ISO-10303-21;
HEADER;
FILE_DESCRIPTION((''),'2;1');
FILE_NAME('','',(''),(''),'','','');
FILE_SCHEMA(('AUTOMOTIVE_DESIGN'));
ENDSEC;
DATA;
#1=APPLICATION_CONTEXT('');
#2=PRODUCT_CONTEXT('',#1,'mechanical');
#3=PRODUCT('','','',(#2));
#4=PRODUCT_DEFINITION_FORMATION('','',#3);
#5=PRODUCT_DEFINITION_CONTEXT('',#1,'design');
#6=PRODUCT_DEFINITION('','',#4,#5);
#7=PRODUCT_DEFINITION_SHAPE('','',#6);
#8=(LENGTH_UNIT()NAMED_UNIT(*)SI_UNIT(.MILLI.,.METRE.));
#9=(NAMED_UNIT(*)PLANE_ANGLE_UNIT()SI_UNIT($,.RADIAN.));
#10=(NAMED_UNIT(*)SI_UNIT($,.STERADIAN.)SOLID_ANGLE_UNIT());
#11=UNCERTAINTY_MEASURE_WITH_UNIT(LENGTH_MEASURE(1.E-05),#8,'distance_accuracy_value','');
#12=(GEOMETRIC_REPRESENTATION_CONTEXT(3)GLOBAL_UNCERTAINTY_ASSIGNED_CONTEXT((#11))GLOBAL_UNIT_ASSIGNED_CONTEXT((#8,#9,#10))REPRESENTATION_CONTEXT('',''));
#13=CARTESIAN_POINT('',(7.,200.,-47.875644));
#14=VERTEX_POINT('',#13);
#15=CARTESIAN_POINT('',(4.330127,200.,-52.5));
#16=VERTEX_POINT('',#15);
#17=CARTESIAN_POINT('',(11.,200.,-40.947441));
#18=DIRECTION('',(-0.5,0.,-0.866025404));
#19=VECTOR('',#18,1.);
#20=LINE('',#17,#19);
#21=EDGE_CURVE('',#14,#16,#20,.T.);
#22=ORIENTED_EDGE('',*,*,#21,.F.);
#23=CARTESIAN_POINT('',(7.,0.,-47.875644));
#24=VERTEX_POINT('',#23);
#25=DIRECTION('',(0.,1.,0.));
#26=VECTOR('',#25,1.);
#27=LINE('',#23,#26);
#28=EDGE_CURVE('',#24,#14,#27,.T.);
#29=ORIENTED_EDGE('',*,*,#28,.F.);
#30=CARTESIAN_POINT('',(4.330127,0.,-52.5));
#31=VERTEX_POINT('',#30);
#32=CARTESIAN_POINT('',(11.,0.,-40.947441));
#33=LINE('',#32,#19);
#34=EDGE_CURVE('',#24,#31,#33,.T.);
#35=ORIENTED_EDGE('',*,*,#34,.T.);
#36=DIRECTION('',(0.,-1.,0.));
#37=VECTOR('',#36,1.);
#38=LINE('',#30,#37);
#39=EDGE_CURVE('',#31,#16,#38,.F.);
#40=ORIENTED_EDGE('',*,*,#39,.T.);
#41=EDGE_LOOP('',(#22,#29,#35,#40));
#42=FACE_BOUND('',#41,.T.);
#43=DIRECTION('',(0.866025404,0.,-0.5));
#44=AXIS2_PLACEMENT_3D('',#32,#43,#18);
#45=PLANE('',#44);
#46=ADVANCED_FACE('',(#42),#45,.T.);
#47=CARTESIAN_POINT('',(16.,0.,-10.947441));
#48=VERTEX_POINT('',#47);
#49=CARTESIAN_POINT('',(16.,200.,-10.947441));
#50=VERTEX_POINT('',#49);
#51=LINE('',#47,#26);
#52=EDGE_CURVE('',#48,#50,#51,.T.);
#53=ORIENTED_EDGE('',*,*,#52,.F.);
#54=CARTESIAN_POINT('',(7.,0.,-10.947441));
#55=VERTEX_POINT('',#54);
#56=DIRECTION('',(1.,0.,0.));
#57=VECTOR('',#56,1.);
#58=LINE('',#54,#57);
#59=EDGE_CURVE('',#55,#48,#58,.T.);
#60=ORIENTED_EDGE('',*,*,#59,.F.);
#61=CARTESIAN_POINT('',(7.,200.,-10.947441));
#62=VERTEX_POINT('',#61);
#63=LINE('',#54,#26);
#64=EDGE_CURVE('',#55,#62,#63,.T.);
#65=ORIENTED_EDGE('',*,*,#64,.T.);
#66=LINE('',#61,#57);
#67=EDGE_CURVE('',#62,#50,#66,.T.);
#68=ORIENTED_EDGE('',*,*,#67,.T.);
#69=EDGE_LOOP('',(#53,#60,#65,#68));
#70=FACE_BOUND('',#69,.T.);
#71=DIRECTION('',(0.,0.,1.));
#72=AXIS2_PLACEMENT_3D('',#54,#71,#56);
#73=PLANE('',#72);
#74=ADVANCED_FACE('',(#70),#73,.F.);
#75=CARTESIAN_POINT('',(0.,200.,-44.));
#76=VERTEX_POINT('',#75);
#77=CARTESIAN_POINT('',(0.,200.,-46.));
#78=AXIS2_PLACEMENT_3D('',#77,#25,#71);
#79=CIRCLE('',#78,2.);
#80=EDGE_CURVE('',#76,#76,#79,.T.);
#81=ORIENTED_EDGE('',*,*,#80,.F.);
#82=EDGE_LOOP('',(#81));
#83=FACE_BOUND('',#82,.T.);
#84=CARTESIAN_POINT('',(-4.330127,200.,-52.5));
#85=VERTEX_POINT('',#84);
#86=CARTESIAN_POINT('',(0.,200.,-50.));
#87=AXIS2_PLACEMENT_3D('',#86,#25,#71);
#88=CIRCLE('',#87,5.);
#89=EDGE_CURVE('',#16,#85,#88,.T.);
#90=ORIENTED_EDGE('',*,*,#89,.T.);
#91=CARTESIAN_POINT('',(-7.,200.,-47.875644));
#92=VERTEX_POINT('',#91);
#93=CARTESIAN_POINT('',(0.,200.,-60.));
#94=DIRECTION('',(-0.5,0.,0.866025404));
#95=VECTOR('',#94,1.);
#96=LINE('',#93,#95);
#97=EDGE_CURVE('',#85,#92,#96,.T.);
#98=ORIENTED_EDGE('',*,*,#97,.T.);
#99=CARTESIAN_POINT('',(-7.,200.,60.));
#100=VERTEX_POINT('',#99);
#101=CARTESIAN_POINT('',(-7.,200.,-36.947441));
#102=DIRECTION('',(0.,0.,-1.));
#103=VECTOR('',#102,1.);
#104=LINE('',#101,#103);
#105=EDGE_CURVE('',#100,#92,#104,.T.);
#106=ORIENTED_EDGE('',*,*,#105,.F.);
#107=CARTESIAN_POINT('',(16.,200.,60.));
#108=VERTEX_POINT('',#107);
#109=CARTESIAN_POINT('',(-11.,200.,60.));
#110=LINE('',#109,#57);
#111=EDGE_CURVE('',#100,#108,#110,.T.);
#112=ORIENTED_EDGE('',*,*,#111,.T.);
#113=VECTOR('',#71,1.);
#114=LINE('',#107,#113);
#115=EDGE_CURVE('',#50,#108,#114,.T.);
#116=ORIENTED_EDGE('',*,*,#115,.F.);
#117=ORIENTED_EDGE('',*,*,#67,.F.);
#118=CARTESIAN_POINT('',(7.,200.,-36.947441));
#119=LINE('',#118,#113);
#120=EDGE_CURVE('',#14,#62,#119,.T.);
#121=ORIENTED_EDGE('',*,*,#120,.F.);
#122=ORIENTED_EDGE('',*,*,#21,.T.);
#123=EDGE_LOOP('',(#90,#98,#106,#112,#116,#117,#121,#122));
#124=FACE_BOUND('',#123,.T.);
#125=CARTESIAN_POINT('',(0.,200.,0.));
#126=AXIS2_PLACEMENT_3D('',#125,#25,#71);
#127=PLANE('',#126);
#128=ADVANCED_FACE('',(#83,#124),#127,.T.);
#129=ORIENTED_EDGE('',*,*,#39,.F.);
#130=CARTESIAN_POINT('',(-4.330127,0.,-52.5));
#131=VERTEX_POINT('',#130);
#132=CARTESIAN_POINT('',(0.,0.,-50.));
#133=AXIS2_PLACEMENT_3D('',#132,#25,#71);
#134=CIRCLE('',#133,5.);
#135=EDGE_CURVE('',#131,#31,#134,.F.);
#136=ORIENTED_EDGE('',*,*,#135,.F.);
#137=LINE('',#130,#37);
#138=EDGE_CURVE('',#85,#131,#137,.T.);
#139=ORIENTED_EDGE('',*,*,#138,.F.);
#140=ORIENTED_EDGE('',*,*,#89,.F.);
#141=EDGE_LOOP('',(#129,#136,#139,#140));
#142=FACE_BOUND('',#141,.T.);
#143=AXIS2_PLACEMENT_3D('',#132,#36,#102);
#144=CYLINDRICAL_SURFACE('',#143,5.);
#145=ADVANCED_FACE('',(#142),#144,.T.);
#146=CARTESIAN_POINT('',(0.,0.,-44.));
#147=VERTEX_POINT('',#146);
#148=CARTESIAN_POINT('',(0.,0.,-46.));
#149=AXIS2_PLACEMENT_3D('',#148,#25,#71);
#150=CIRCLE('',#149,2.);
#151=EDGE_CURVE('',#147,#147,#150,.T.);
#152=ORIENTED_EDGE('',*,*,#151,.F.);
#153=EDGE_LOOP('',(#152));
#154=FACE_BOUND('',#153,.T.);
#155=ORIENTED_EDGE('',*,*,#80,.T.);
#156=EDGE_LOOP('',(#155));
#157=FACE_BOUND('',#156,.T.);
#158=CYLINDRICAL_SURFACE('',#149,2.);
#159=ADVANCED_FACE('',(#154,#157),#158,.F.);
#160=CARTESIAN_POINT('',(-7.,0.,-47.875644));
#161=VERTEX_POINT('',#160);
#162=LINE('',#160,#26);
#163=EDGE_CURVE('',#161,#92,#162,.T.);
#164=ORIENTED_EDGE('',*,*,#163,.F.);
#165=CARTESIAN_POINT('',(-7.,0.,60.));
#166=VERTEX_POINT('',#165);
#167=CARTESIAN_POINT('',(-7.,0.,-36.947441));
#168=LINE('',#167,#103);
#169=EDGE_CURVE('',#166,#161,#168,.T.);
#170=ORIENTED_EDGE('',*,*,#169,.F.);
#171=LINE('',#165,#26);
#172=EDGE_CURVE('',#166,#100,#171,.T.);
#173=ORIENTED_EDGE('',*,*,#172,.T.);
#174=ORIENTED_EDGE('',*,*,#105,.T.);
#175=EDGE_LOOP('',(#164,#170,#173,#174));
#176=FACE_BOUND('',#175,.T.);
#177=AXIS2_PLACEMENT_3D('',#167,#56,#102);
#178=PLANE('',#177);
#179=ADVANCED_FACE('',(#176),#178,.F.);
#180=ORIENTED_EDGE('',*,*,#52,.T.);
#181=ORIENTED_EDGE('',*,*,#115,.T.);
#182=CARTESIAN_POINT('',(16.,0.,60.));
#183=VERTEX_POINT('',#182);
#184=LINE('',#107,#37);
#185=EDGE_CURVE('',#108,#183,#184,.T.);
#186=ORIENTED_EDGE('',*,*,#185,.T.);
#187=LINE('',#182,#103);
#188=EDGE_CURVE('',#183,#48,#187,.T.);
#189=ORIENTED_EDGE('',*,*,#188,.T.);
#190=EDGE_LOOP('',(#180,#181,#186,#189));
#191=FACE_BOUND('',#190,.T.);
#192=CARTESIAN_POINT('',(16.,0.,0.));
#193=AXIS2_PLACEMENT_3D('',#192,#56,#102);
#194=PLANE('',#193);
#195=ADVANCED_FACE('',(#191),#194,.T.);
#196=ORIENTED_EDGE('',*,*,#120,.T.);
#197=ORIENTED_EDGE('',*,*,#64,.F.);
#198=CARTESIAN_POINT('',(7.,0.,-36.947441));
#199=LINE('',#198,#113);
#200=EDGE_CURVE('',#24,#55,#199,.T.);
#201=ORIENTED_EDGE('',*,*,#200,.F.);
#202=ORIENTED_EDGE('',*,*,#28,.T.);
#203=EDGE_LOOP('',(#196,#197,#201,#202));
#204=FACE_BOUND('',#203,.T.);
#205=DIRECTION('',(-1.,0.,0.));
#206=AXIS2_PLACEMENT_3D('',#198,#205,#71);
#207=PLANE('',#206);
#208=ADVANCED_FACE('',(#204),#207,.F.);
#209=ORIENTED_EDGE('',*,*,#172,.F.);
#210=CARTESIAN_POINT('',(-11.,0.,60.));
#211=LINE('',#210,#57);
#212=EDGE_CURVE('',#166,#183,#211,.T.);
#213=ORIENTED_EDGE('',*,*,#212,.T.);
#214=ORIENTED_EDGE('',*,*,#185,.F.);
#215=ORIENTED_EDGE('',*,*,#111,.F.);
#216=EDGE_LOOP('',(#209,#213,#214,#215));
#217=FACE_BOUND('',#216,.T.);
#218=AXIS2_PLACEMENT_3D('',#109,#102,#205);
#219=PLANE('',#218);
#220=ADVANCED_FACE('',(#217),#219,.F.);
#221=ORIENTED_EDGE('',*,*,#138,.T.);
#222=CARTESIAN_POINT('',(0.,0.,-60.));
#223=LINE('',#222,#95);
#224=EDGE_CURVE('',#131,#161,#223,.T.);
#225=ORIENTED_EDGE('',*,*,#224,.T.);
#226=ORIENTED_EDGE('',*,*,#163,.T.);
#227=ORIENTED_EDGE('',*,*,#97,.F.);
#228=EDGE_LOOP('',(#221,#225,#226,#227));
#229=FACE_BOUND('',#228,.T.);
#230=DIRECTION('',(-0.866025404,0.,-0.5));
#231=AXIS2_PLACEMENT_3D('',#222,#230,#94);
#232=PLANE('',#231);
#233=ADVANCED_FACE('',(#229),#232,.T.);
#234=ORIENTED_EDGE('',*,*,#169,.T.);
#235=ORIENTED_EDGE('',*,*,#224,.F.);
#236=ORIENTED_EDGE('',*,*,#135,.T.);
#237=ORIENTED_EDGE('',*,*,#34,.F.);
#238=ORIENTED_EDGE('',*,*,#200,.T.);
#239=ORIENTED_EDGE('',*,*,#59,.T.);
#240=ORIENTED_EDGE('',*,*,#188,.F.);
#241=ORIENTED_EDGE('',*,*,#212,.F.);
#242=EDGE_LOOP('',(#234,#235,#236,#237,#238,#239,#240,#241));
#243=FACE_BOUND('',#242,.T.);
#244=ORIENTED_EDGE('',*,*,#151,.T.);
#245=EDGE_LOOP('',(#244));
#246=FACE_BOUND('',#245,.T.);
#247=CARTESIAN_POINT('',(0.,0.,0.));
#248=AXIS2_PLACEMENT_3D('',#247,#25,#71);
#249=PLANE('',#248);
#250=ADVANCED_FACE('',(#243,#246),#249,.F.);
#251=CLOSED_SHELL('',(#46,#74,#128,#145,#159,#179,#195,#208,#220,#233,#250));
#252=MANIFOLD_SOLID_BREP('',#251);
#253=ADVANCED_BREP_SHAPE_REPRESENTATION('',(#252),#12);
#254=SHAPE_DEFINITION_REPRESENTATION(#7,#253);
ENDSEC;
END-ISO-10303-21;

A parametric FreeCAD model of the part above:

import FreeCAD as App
import Part
import Sketcher
Q = App.Units.Quantity


def edges_at(feature, points):
    """Names of the edges that pass closest to the given points."""
    edges = feature.Shape.Edges
    near = lambda p: min(range(len(edges)), key=lambda i: edges[i].distToShape(Part.Vertex(*p))[0])
    return sorted({f"Edge{near(p) + 1}" for p in points})

doc = App.newDocument("Part")
body = doc.addObject("PartDesign::Body", "Body")

# Sketch on XZ plane
sketch1 = body.newObject("Sketcher::SketchObject", "Sketch")
sketch1.AttachmentSupport = (doc.getObject("XZ_Plane"), [""])
sketch1.MapMode = "FlatFace"
sketch1.addGeometry(Part.LineSegment(App.Vector(-11, -60, 0), App.Vector(-11, 60, 0)), False)
sketch1.addGeometry(Part.LineSegment(App.Vector(-11, 60, 0), App.Vector(11, 60, 0)), False)
sketch1.addGeometry(Part.LineSegment(App.Vector(11, 60, 0), App.Vector(11, -60, 0)), False)
sketch1.addGeometry(Part.LineSegment(App.Vector(11, -60, 0), App.Vector(-11, -60, 0)), False)
sketch1.addConstraint(Sketcher.Constraint("Coincident", 0, 2, 1, 1))
sketch1.addConstraint(Sketcher.Constraint("Coincident", 1, 2, 2, 1))
sketch1.addConstraint(Sketcher.Constraint("Coincident", 2, 2, 3, 1))
sketch1.addConstraint(Sketcher.Constraint("Coincident", 3, 2, 0, 1))
sketch1.addConstraint(Sketcher.Constraint("Vertical", 0))
sketch1.addConstraint(Sketcher.Constraint("Horizontal", 1))
sketch1.addConstraint(Sketcher.Constraint("Vertical", 2))
sketch1.addConstraint(Sketcher.Constraint("Horizontal", 3))
sketch1.addConstraint(Sketcher.Constraint("Symmetric", 0, 2, 2, 2, -1, 1))
sketch1.addConstraint(Sketcher.Constraint("DistanceX", 1, 1, 1, 2, 22.0))
sketch1.addConstraint(Sketcher.Constraint("DistanceY", 0, 1, 0, 2, 120.0))
pad1 = body.newObject("PartDesign::Pad", "Pad")
pad1.Profile = sketch1
pad1.Length = 200
pad1.Reversed = True

# Sketch on XZ plane
sketch2 = body.newObject("Sketcher::SketchObject", "Sketch001")
sketch2.AttachmentSupport = (doc.getObject("XZ_Plane"), [""])
sketch2.MapMode = "FlatFace"
sketch2.AttachmentOffset = App.Placement(App.Vector(0, 0, -200), App.Rotation())
sketch2.addGeometry(Part.LineSegment(App.Vector(-35.427, -84.427, 0), App.Vector(-35.427, 84.427, 0)), False)
sketch2.addGeometry(Part.LineSegment(App.Vector(-35.427, 84.427, 0), App.Vector(35.427, 84.427, 0)), False)
sketch2.addGeometry(Part.LineSegment(App.Vector(35.427, 84.427, 0), App.Vector(35.427, -84.427, 0)), False)
sketch2.addGeometry(Part.LineSegment(App.Vector(35.427, -84.427, 0), App.Vector(-35.427, -84.427, 0)), False)
sketch2.addGeometry(Part.LineSegment(App.Vector(-11, -40.947441, 0), App.Vector(0, -60, 0)), False)
sketch2.addGeometry(Part.LineSegment(App.Vector(0, -60, 0), App.Vector(11, -40.947441, 0)), False)
sketch2.addGeometry(Part.LineSegment(App.Vector(11, -40.947441, 0), App.Vector(11, 60, 0)), False)
sketch2.addGeometry(Part.LineSegment(App.Vector(11, 60, 0), App.Vector(-11, 60, 0)), False)
sketch2.addGeometry(Part.LineSegment(App.Vector(-11, 60, 0), App.Vector(-11, -40.947441, 0)), False)
sketch2.addConstraint(Sketcher.Constraint("Coincident", 0, 2, 1, 1))
sketch2.addConstraint(Sketcher.Constraint("Coincident", 1, 2, 2, 1))
sketch2.addConstraint(Sketcher.Constraint("Coincident", 2, 2, 3, 1))
sketch2.addConstraint(Sketcher.Constraint("Coincident", 3, 2, 0, 1))
sketch2.addConstraint(Sketcher.Constraint("Coincident", 4, 2, 5, 1))
sketch2.addConstraint(Sketcher.Constraint("Coincident", 5, 2, 6, 1))
sketch2.addConstraint(Sketcher.Constraint("Coincident", 6, 2, 7, 1))
sketch2.addConstraint(Sketcher.Constraint("Coincident", 7, 2, 8, 1))
sketch2.addConstraint(Sketcher.Constraint("Coincident", 8, 2, 4, 1))
sketch2.addConstraint(Sketcher.Constraint("Vertical", 0))
sketch2.addConstraint(Sketcher.Constraint("Horizontal", 1))
sketch2.addConstraint(Sketcher.Constraint("Vertical", 2))
sketch2.addConstraint(Sketcher.Constraint("Horizontal", 3))
sketch2.addConstraint(Sketcher.Constraint("Vertical", 6))
sketch2.addConstraint(Sketcher.Constraint("Horizontal", 7))
sketch2.addConstraint(Sketcher.Constraint("Vertical", 8))
sketch2.addConstraint(Sketcher.Constraint("Symmetric", 0, 2, 2, 2, -1, 1))
sketch2.addConstraint(Sketcher.Constraint("Symmetric", 5, 2, 8, 2, -2))
sketch2.addConstraint(Sketcher.Constraint("PointOnObject", 4, 2, -2))
sketch2.addConstraint(Sketcher.Constraint("DistanceX", 7, 2, 7, 1, 22.0))
sketch2.addConstraint(Sketcher.Constraint("Angle", 4, Q("-60 deg")))
sketch2.addConstraint(Sketcher.Constraint("DistanceY", 4, 2, -1, 1, 60.0))
sketch2.addConstraint(Sketcher.Constraint("DistanceY", -1, 1, 6, 2, 60.0))
sketch2.addConstraint(Sketcher.Constraint("DistanceX", 1, 1, 1, 2, 70.854))
sketch2.addConstraint(Sketcher.Constraint("DistanceY", 0, 1, 0, 2, 168.854))
pocket1 = body.newObject("PartDesign::Pocket", "Pocket")
pocket1.Profile = sketch2
pocket1.Type = "ThroughAll"
pocket1.Reversed = True
doc.recompute()

fillet = body.newObject("PartDesign::Fillet", "Fillet")
fillet.Base = (pocket1, edges_at(pocket1, [(0, 100, -60)]))
fillet.Radius = 5

# Sketch on XZ plane
sketch3 = body.newObject("Sketcher::SketchObject", "Sketch002")
sketch3.AttachmentSupport = (doc.getObject("XZ_Plane"), [""])
sketch3.MapMode = "FlatFace"
sketch3.AttachmentOffset = App.Placement(App.Vector(0, 0, -200), App.Rotation())
sketch3.addGeometry(Part.LineSegment(App.Vector(-11, -36.947441, 0), App.Vector(-7, -36.947441, 0)), False)
sketch3.addGeometry(Part.LineSegment(App.Vector(-7, -36.947441, 0), App.Vector(-7, -47.875644, 0)), False)
sketch3.addGeometry(Part.LineSegment(App.Vector(-7, -47.875644, 0), App.Vector(-11, -40.947441, 0)), False)
sketch3.addGeometry(Part.LineSegment(App.Vector(-11, -40.947441, 0), App.Vector(-11, -36.947441, 0)), False)
sketch3.addGeometry(Part.LineSegment(App.Vector(11, -40.947441, 0), App.Vector(7, -47.875644, 0)), False)
sketch3.addGeometry(Part.LineSegment(App.Vector(7, -47.875644, 0), App.Vector(7, -36.947441, 0)), False)
sketch3.addGeometry(Part.LineSegment(App.Vector(7, -36.947441, 0), App.Vector(11, -36.947441, 0)), False)
sketch3.addGeometry(Part.LineSegment(App.Vector(11, -36.947441, 0), App.Vector(11, -40.947441, 0)), False)
sketch3.addConstraint(Sketcher.Constraint("Coincident", 0, 2, 1, 1))
sketch3.addConstraint(Sketcher.Constraint("Coincident", 1, 2, 2, 1))
sketch3.addConstraint(Sketcher.Constraint("Coincident", 2, 2, 3, 1))
sketch3.addConstraint(Sketcher.Constraint("Coincident", 3, 2, 0, 1))
sketch3.addConstraint(Sketcher.Constraint("Coincident", 4, 2, 5, 1))
sketch3.addConstraint(Sketcher.Constraint("Coincident", 5, 2, 6, 1))
sketch3.addConstraint(Sketcher.Constraint("Coincident", 6, 2, 7, 1))
sketch3.addConstraint(Sketcher.Constraint("Coincident", 7, 2, 4, 1))
sketch3.addConstraint(Sketcher.Constraint("Horizontal", 0))
sketch3.addConstraint(Sketcher.Constraint("Vertical", 1))
sketch3.addConstraint(Sketcher.Constraint("Vertical", 3))
sketch3.addConstraint(Sketcher.Constraint("Vertical", 5))
sketch3.addConstraint(Sketcher.Constraint("Horizontal", 6))
sketch3.addConstraint(Sketcher.Constraint("Vertical", 7))
sketch3.addConstraint(Sketcher.Constraint("Symmetric", 1, 2, 4, 2, -2))
sketch3.addConstraint(Sketcher.Constraint("Symmetric", 3, 2, 6, 2, -2))
sketch3.addConstraint(Sketcher.Constraint("Horizontal", 2, 2, 7, 2))
sketch3.addConstraint(Sketcher.Constraint("Equal", 6, 3))
sketch3.addConstraint(Sketcher.Constraint("DistanceX", 0, 1, 0, 2, 4.0))
sketch3.addConstraint(Sketcher.Constraint("Angle", 2, Q("120 deg")))
sketch3.addConstraint(Sketcher.Constraint("DistanceX", 0, 2, -1, 1, 7.0))
sketch3.addConstraint(Sketcher.Constraint("DistanceY", 0, 2, -1, 1, 36.947441))
pocket2 = body.newObject("PartDesign::Pocket", "Pocket001")
pocket2.Profile = sketch3
pocket2.Type = "ThroughAll"
pocket2.Reversed = True

# Sketch on YZ plane
sketch4 = body.newObject("Sketcher::SketchObject", "Sketch003")
sketch4.AttachmentSupport = (doc.getObject("YZ_Plane"), [""])
sketch4.MapMode = "FlatFace"
sketch4.AttachmentOffset = App.Placement(App.Vector(0, 0, 11), App.Rotation())
sketch4.addGeometry(Part.LineSegment(App.Vector(200, 60, 0), App.Vector(0, 60, 0)), False)
sketch4.addGeometry(Part.LineSegment(App.Vector(0, 60, 0), App.Vector(0, -36.947441, 0)), False)
sketch4.addGeometry(Part.LineSegment(App.Vector(0, -36.947441, 0), App.Vector(200, -36.947441, 0)), False)
sketch4.addGeometry(Part.LineSegment(App.Vector(200, -36.947441, 0), App.Vector(200, 60, 0)), False)
sketch4.addConstraint(Sketcher.Constraint("Coincident", 0, 2, 1, 1))
sketch4.addConstraint(Sketcher.Constraint("Coincident", 1, 2, 2, 1))
sketch4.addConstraint(Sketcher.Constraint("Coincident", 2, 2, 3, 1))
sketch4.addConstraint(Sketcher.Constraint("Coincident", 3, 2, 0, 1))
sketch4.addConstraint(Sketcher.Constraint("Horizontal", 0))
sketch4.addConstraint(Sketcher.Constraint("Vertical", 1))
sketch4.addConstraint(Sketcher.Constraint("Horizontal", 2))
sketch4.addConstraint(Sketcher.Constraint("Vertical", 3))
sketch4.addConstraint(Sketcher.Constraint("PointOnObject", 0, 2, -2))
sketch4.addConstraint(Sketcher.Constraint("DistanceX", 0, 2, 0, 1, 200.0))
sketch4.addConstraint(Sketcher.Constraint("DistanceY", -1, 1, 0, 2, 60.0))
sketch4.addConstraint(Sketcher.Constraint("DistanceY", 1, 2, 1, 1, 96.947441))
pad2 = body.newObject("PartDesign::Pad", "Pad001")
pad2.Profile = sketch4
pad2.Length = 5

# Sketch on XZ plane
sketch5 = body.newObject("Sketcher::SketchObject", "Sketch004")
sketch5.AttachmentSupport = (doc.getObject("XZ_Plane"), [""])
sketch5.MapMode = "FlatFace"
sketch5.AttachmentOffset = App.Placement(App.Vector(0, 0, -200), App.Rotation())
sketch5.addGeometry(Part.LineSegment(App.Vector(-11, -36.947441, 0), App.Vector(-11, 60, 0)), False)
sketch5.addGeometry(Part.LineSegment(App.Vector(-11, 60, 0), App.Vector(-7, 60, 0)), False)
sketch5.addGeometry(Part.LineSegment(App.Vector(-7, 60, 0), App.Vector(-7, -36.947441, 0)), False)
sketch5.addGeometry(Part.LineSegment(App.Vector(-7, -36.947441, 0), App.Vector(-11, -36.947441, 0)), False)
sketch5.addConstraint(Sketcher.Constraint("Coincident", 0, 2, 1, 1))
sketch5.addConstraint(Sketcher.Constraint("Coincident", 1, 2, 2, 1))
sketch5.addConstraint(Sketcher.Constraint("Coincident", 2, 2, 3, 1))
sketch5.addConstraint(Sketcher.Constraint("Coincident", 3, 2, 0, 1))
sketch5.addConstraint(Sketcher.Constraint("Vertical", 0))
sketch5.addConstraint(Sketcher.Constraint("Horizontal", 1))
sketch5.addConstraint(Sketcher.Constraint("Vertical", 2))
sketch5.addConstraint(Sketcher.Constraint("Horizontal", 3))
sketch5.addConstraint(Sketcher.Constraint("DistanceX", 1, 1, 1, 2, 4.0))
sketch5.addConstraint(Sketcher.Constraint("DistanceX", 0, 2, -1, 1, 11.0))
sketch5.addConstraint(Sketcher.Constraint("DistanceY", -1, 1, 0, 2, 60.0))
sketch5.addConstraint(Sketcher.Constraint("DistanceY", 0, 1, 0, 2, 96.947441))
pocket3 = body.newObject("PartDesign::Pocket", "Pocket002")
pocket3.Profile = sketch5
pocket3.Type = "ThroughAll"
pocket3.Reversed = True

# Sketch on XZ plane
sketch6 = body.newObject("Sketcher::SketchObject", "Sketch005")
sketch6.AttachmentSupport = (doc.getObject("XZ_Plane"), [""])
sketch6.MapMode = "FlatFace"
sketch6.AttachmentOffset = App.Placement(App.Vector(0, 0, -200), App.Rotation())
sketch6.addGeometry(Part.Circle(App.Vector(0, -46, 0), App.Vector(0, 0, 1), 2), False)
sketch6.addConstraint(Sketcher.Constraint("PointOnObject", 0, 3, -2))
sketch6.addConstraint(Sketcher.Constraint("Diameter", 0, 4.0))
sketch6.addConstraint(Sketcher.Constraint("DistanceY", 0, 3, -1, 1, 46.0))
pocket4 = body.newObject("PartDesign::Pocket", "Pocket003")
pocket4.Profile = sketch6
pocket4.Type = "ThroughAll"
pocket4.Reversed = True

# Sketch on XZ plane
sketch7 = body.newObject("Sketcher::SketchObject", "Sketch006")
sketch7.AttachmentSupport = (doc.getObject("XZ_Plane"), [""])
sketch7.MapMode = "FlatFace"
sketch7.AttachmentOffset = App.Placement(App.Vector(0, 0, -200), App.Rotation())
sketch7.addGeometry(Part.LineSegment(App.Vector(7, -36.947441, 0), App.Vector(7, -10.947441, 0)), False)
sketch7.addGeometry(Part.LineSegment(App.Vector(7, -10.947441, 0), App.Vector(16, -10.947441, 0)), False)
sketch7.addGeometry(Part.LineSegment(App.Vector(16, -10.947441, 0), App.Vector(16, -36.947441, 0)), False)
sketch7.addGeometry(Part.LineSegment(App.Vector(16, -36.947441, 0), App.Vector(7, -36.947441, 0)), False)
sketch7.addConstraint(Sketcher.Constraint("Coincident", 0, 2, 1, 1))
sketch7.addConstraint(Sketcher.Constraint("Coincident", 1, 2, 2, 1))
sketch7.addConstraint(Sketcher.Constraint("Coincident", 2, 2, 3, 1))
sketch7.addConstraint(Sketcher.Constraint("Coincident", 3, 2, 0, 1))
sketch7.addConstraint(Sketcher.Constraint("Vertical", 0))
sketch7.addConstraint(Sketcher.Constraint("Horizontal", 1))
sketch7.addConstraint(Sketcher.Constraint("Vertical", 2))
sketch7.addConstraint(Sketcher.Constraint("Horizontal", 3))
sketch7.addConstraint(Sketcher.Constraint("DistanceX", 1, 1, 1, 2, 9.0))
sketch7.addConstraint(Sketcher.Constraint("DistanceY", 0, 1, 0, 2, 26.0))
sketch7.addConstraint(Sketcher.Constraint("DistanceX", -1, 1, 0, 2, 7.0))
sketch7.addConstraint(Sketcher.Constraint("DistanceY", 0, 2, -1, 1, 10.947441))
pocket5 = body.newObject("PartDesign::Pocket", "Pocket004")
pocket5.Profile = sketch7
pocket5.Type = "ThroughAll"
pocket5.Reversed = True

doc.recompute()
